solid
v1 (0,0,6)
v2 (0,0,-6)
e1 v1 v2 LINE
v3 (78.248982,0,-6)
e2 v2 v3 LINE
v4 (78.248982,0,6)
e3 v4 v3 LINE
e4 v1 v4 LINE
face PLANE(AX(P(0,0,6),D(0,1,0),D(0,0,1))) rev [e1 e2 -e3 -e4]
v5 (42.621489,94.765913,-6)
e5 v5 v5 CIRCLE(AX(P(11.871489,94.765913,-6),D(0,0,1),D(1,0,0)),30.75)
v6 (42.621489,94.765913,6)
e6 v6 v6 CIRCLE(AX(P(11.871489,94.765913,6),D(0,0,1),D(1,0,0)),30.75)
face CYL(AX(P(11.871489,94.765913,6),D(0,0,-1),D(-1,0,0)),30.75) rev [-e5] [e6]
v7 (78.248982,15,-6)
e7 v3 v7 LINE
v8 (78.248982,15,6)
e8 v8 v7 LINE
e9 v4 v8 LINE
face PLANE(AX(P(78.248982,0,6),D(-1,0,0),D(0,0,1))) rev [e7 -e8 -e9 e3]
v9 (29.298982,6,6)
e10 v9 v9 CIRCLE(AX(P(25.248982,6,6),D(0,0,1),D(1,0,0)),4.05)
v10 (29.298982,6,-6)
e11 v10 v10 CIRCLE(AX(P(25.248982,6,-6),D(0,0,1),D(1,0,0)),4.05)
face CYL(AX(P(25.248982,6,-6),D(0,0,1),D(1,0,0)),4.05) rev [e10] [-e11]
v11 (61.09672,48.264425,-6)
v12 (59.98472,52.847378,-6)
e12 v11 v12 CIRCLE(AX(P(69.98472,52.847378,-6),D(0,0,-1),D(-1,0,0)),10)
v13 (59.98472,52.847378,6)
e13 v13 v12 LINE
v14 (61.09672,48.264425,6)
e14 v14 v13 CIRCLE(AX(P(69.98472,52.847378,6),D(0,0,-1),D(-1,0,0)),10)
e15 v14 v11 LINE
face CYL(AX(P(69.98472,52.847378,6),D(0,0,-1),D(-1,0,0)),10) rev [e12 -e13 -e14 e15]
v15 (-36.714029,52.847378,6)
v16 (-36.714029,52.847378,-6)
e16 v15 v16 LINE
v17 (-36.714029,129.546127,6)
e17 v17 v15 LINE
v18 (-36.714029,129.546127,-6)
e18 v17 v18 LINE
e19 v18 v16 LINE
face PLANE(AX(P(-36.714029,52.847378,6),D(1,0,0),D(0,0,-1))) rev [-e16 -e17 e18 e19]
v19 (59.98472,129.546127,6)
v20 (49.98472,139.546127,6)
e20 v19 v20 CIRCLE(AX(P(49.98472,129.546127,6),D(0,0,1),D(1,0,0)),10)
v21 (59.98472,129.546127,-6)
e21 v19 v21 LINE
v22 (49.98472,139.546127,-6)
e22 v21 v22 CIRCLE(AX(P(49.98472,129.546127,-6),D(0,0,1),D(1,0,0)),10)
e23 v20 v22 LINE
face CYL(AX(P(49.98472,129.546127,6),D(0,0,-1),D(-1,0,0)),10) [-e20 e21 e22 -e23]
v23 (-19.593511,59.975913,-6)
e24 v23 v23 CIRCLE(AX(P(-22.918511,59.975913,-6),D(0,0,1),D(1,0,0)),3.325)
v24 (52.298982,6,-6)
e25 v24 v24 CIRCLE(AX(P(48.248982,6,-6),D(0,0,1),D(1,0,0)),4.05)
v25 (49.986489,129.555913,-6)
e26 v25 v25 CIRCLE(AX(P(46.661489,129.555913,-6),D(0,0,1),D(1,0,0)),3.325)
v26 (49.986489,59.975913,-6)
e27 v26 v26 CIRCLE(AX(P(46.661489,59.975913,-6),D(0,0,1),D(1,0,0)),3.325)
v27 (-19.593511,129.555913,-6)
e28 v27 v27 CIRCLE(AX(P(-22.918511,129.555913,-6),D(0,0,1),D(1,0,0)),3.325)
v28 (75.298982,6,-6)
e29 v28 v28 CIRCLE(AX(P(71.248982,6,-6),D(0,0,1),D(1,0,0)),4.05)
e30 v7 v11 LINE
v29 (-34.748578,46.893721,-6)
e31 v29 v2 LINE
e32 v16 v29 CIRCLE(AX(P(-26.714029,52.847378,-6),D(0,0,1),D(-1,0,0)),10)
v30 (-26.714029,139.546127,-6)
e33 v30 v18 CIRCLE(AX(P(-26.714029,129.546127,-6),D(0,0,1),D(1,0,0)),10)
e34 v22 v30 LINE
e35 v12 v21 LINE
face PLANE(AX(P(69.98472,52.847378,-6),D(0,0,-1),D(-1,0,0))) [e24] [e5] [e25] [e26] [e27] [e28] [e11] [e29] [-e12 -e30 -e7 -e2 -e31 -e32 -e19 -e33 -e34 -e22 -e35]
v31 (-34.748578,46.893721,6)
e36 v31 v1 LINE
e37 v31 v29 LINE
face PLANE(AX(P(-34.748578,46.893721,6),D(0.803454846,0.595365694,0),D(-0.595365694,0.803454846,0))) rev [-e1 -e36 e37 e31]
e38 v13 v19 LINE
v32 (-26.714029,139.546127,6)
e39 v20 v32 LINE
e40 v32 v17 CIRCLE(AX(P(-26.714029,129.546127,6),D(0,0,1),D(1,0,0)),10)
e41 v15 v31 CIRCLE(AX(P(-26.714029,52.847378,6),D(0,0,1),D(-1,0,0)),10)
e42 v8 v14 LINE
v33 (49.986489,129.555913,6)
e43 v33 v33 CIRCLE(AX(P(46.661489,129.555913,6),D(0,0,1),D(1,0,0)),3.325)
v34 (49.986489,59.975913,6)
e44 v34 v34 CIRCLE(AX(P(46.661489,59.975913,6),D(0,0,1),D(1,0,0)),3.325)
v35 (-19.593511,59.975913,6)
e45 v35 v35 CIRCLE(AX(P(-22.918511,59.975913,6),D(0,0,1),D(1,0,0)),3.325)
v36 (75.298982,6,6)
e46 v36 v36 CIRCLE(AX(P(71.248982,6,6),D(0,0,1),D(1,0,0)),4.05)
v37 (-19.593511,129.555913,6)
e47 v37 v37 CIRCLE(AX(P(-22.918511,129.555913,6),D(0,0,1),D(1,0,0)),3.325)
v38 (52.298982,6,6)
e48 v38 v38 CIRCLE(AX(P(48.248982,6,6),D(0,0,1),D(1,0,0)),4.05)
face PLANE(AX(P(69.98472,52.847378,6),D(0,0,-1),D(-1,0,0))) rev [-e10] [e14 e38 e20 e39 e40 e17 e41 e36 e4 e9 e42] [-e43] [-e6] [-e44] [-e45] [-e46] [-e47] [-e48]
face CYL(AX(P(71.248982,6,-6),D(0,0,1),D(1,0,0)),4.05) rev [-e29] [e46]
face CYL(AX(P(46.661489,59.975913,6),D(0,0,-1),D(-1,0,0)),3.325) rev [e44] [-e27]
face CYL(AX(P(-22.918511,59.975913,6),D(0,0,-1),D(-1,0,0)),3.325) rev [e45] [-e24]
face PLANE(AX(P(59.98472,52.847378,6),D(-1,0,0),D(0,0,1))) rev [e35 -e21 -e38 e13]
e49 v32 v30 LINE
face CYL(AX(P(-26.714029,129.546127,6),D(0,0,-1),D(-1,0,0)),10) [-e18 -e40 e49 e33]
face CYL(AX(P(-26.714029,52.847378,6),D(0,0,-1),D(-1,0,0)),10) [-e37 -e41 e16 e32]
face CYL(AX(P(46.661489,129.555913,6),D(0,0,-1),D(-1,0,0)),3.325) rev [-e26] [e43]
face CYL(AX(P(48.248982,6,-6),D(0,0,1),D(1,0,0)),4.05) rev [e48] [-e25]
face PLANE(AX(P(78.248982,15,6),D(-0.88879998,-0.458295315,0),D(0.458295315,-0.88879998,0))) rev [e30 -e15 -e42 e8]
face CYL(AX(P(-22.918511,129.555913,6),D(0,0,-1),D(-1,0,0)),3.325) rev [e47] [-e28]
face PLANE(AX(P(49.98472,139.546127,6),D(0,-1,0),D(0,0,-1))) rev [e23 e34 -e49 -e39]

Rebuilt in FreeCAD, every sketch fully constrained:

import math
import FreeCAD as App
import Part
import Sketcher

doc = App.newDocument("Part")
body = doc.addObject("PartDesign::Body", "Body")

# Sketch on XY plane
sketch1 = body.newObject("Sketcher::SketchObject", "Sketch")
sketch1.AttachmentSupport = (doc.getObject("XY_Plane"), [""])
sketch1.MapMode = "FlatFace"
sketch1.addGeometry([
    Part.LineSegment(App.Vector(-34.7, 46.9, 0), App.Vector(0, 0, 0)),  # 0
    Part.LineSegment(App.Vector(0, 0, 0), App.Vector(78.2, 0, 0)),  # 1
    Part.LineSegment(App.Vector(78.2, 0, 0), App.Vector(78.2, 15, 0)),  # 2
    Part.LineSegment(App.Vector(78.2, 15, 0), App.Vector(61.1, 48.3, 0)),  # 3
    Part.ArcOfCircle(Part.Circle(App.Vector(70, 52.8, 0), App.Vector(0, 0, 1), 10), math.radians(180), math.radians(207)),  # 4
    Part.LineSegment(App.Vector(60, 52.8, 0), App.Vector(60, 129.5, 0)),  # 5
    Part.ArcOfCircle(Part.Circle(App.Vector(50, 129.5, 0), App.Vector(0, 0, 1), 10), math.radians(0), math.radians(90)),  # 6
    Part.LineSegment(App.Vector(50, 139.5, 0), App.Vector(-26.7, 139.5, 0)),  # 7
    Part.ArcOfCircle(Part.Circle(App.Vector(-26.7, 129.5, 0), App.Vector(0, 0, 1), 10), math.radians(90), math.radians(180)),  # 8
    Part.LineSegment(App.Vector(-36.7, 129.5, 0), App.Vector(-36.7, 52.8, 0)),  # 9
    Part.ArcOfCircle(Part.Circle(App.Vector(-26.7, 52.8, 0), App.Vector(0, 0, 1), 10), math.radians(-180), math.radians(-143)),  # 10
    Part.Circle(App.Vector(-22.9, 60, 0), App.Vector(0, 0, 1), 3.3),  # 11
    Part.Circle(App.Vector(46.7, 60, 0), App.Vector(0, 0, 1), 3.3),  # 12
    Part.Circle(App.Vector(11.9, 94.8, 0), App.Vector(0, 0, 1), 30.8),  # 13
    Part.Circle(App.Vector(-22.9, 129.6, 0), App.Vector(0, 0, 1), 3.3),  # 14
    Part.Circle(App.Vector(46.7, 129.6, 0), App.Vector(0, 0, 1), 3.3),  # 15
], False)
sketch1.addConstraint([
    Sketcher.Constraint("Coincident", 0, 2, 1, 1),
    Sketcher.Constraint("Coincident", 1, 2, 2, 1),
    Sketcher.Constraint("Coincident", 2, 2, 3, 1),
    Sketcher.Constraint("Tangent", 3, 2, 4, 2),
    Sketcher.Constraint("Tangent", 4, 1, 5, 1),
    Sketcher.Constraint("Tangent", 5, 2, 6, 1),
    Sketcher.Constraint("Tangent", 6, 2, 7, 1),
    Sketcher.Constraint("Tangent", 7, 2, 8, 1),
    Sketcher.Constraint("Tangent", 8, 2, 9, 1),
    Sketcher.Constraint("Tangent", 9, 2, 10, 1),
    Sketcher.Constraint("Tangent", 10, 2, 0, 1),
    Sketcher.Constraint("Horizontal", 1),
    Sketcher.Constraint("Vertical", 2),
    Sketcher.Constraint("Vertical", 5),
    Sketcher.Constraint("Horizontal", 7),
    Sketcher.Constraint("Vertical", 9),
    Sketcher.Constraint("Coincident", 0, 2, -1, 1),
    Sketcher.Constraint("Equal", 4, 6),
    Sketcher.Constraint("Equal", 6, 8),
    Sketcher.Constraint("Equal", 8, 10),
    Sketcher.Constraint("Equal", 11, 12),
    Sketcher.Constraint("Equal", 12, 14),
    Sketcher.Constraint("Equal", 14, 15),
    Sketcher.Constraint("Horizontal", 4, 3, 10, 3),
    Sketcher.Constraint("Horizontal", 11, 3, 12, 3),
    Sketcher.Constraint("Horizontal", 14, 3, 15, 3),
    Sketcher.Constraint("Vertical", 11, 3, 14, 3),
    Sketcher.Constraint("Vertical", 12, 3, 15, 3),
    Sketcher.Constraint("Equal", 7, 5),
    Sketcher.Constraint("Radius", 4, 10.0),
    Sketcher.Constraint("Diameter", 13, 61.5),
    Sketcher.Constraint("Diameter", 11, 6.65),
    Sketcher.Constraint("DistanceY", 2, 1, 2, 2, 15.0),
    Sketcher.Constraint("DistanceX", 11, 3, 12, 3, 69.58),
    Sketcher.Constraint("DistanceX", 11, 3, 13, 3, 34.79),
    Sketcher.Constraint("DistanceY", 11, 3, 13, 3, 34.79),
    Sketcher.Constraint("DistanceY", 13, 3, 14, 3, 34.79),
    Sketcher.Constraint("DistanceX", 3, 2, 4, 3, 8.888),
    Sketcher.Constraint("Distance", 0, 58.365099),
    Sketcher.Constraint("DistanceX", 7, 2, 7, 1, 76.698749),
    Sketcher.Constraint("Distance", 3, 37.426222),
    Sketcher.Constraint("DistanceX", 11, 3, -1, 1, 22.918511),
    Sketcher.Constraint("DistanceY", 10, 2, 11, 3, 13.082191),
])
pad1 = body.newObject("PartDesign::Pad", "Pad")
pad1.Profile = sketch1
pad1.Length = 12
pad1.Midplane = True

# Sketch on XY plane
sketch2 = body.newObject("Sketcher::SketchObject", "Sketch001")
sketch2.AttachmentSupport = (doc.getObject("XY_Plane"), [""])
sketch2.MapMode = "FlatFace"
sketch2.AttachmentOffset = App.Placement(App.Vector(0, 0, 6), App.Rotation())
sketch2.addGeometry(Part.Circle(App.Vector(71.2, 6, 0), App.Vector(0, 0, 1), 4), False)
sketch2.addConstraint([
    Sketcher.Constraint("Diameter", 0, 8.1),
    Sketcher.Constraint("DistanceY", -1, 1, 0, 3, 6.0),
    Sketcher.Constraint("DistanceX", -1, 1, 0, 3, 71.248982),
])
pocket1 = body.newObject("PartDesign::Pocket", "Pocket")
pocket1.Profile = sketch2
pocket1.Type = "ThroughAll"
doc.recompute()

linearpattern = body.newObject("PartDesign::LinearPattern", "LinearPattern")
linearpattern.Originals = [pocket1]
linearpattern.Direction = (doc.getObject("X_Axis"), [""])
linearpattern.Mode = "offset"
linearpattern.Offset = 23
linearpattern.Occurrences = 3
linearpattern.Reversed = True
body.Tip = linearpattern

doc.recompute()
